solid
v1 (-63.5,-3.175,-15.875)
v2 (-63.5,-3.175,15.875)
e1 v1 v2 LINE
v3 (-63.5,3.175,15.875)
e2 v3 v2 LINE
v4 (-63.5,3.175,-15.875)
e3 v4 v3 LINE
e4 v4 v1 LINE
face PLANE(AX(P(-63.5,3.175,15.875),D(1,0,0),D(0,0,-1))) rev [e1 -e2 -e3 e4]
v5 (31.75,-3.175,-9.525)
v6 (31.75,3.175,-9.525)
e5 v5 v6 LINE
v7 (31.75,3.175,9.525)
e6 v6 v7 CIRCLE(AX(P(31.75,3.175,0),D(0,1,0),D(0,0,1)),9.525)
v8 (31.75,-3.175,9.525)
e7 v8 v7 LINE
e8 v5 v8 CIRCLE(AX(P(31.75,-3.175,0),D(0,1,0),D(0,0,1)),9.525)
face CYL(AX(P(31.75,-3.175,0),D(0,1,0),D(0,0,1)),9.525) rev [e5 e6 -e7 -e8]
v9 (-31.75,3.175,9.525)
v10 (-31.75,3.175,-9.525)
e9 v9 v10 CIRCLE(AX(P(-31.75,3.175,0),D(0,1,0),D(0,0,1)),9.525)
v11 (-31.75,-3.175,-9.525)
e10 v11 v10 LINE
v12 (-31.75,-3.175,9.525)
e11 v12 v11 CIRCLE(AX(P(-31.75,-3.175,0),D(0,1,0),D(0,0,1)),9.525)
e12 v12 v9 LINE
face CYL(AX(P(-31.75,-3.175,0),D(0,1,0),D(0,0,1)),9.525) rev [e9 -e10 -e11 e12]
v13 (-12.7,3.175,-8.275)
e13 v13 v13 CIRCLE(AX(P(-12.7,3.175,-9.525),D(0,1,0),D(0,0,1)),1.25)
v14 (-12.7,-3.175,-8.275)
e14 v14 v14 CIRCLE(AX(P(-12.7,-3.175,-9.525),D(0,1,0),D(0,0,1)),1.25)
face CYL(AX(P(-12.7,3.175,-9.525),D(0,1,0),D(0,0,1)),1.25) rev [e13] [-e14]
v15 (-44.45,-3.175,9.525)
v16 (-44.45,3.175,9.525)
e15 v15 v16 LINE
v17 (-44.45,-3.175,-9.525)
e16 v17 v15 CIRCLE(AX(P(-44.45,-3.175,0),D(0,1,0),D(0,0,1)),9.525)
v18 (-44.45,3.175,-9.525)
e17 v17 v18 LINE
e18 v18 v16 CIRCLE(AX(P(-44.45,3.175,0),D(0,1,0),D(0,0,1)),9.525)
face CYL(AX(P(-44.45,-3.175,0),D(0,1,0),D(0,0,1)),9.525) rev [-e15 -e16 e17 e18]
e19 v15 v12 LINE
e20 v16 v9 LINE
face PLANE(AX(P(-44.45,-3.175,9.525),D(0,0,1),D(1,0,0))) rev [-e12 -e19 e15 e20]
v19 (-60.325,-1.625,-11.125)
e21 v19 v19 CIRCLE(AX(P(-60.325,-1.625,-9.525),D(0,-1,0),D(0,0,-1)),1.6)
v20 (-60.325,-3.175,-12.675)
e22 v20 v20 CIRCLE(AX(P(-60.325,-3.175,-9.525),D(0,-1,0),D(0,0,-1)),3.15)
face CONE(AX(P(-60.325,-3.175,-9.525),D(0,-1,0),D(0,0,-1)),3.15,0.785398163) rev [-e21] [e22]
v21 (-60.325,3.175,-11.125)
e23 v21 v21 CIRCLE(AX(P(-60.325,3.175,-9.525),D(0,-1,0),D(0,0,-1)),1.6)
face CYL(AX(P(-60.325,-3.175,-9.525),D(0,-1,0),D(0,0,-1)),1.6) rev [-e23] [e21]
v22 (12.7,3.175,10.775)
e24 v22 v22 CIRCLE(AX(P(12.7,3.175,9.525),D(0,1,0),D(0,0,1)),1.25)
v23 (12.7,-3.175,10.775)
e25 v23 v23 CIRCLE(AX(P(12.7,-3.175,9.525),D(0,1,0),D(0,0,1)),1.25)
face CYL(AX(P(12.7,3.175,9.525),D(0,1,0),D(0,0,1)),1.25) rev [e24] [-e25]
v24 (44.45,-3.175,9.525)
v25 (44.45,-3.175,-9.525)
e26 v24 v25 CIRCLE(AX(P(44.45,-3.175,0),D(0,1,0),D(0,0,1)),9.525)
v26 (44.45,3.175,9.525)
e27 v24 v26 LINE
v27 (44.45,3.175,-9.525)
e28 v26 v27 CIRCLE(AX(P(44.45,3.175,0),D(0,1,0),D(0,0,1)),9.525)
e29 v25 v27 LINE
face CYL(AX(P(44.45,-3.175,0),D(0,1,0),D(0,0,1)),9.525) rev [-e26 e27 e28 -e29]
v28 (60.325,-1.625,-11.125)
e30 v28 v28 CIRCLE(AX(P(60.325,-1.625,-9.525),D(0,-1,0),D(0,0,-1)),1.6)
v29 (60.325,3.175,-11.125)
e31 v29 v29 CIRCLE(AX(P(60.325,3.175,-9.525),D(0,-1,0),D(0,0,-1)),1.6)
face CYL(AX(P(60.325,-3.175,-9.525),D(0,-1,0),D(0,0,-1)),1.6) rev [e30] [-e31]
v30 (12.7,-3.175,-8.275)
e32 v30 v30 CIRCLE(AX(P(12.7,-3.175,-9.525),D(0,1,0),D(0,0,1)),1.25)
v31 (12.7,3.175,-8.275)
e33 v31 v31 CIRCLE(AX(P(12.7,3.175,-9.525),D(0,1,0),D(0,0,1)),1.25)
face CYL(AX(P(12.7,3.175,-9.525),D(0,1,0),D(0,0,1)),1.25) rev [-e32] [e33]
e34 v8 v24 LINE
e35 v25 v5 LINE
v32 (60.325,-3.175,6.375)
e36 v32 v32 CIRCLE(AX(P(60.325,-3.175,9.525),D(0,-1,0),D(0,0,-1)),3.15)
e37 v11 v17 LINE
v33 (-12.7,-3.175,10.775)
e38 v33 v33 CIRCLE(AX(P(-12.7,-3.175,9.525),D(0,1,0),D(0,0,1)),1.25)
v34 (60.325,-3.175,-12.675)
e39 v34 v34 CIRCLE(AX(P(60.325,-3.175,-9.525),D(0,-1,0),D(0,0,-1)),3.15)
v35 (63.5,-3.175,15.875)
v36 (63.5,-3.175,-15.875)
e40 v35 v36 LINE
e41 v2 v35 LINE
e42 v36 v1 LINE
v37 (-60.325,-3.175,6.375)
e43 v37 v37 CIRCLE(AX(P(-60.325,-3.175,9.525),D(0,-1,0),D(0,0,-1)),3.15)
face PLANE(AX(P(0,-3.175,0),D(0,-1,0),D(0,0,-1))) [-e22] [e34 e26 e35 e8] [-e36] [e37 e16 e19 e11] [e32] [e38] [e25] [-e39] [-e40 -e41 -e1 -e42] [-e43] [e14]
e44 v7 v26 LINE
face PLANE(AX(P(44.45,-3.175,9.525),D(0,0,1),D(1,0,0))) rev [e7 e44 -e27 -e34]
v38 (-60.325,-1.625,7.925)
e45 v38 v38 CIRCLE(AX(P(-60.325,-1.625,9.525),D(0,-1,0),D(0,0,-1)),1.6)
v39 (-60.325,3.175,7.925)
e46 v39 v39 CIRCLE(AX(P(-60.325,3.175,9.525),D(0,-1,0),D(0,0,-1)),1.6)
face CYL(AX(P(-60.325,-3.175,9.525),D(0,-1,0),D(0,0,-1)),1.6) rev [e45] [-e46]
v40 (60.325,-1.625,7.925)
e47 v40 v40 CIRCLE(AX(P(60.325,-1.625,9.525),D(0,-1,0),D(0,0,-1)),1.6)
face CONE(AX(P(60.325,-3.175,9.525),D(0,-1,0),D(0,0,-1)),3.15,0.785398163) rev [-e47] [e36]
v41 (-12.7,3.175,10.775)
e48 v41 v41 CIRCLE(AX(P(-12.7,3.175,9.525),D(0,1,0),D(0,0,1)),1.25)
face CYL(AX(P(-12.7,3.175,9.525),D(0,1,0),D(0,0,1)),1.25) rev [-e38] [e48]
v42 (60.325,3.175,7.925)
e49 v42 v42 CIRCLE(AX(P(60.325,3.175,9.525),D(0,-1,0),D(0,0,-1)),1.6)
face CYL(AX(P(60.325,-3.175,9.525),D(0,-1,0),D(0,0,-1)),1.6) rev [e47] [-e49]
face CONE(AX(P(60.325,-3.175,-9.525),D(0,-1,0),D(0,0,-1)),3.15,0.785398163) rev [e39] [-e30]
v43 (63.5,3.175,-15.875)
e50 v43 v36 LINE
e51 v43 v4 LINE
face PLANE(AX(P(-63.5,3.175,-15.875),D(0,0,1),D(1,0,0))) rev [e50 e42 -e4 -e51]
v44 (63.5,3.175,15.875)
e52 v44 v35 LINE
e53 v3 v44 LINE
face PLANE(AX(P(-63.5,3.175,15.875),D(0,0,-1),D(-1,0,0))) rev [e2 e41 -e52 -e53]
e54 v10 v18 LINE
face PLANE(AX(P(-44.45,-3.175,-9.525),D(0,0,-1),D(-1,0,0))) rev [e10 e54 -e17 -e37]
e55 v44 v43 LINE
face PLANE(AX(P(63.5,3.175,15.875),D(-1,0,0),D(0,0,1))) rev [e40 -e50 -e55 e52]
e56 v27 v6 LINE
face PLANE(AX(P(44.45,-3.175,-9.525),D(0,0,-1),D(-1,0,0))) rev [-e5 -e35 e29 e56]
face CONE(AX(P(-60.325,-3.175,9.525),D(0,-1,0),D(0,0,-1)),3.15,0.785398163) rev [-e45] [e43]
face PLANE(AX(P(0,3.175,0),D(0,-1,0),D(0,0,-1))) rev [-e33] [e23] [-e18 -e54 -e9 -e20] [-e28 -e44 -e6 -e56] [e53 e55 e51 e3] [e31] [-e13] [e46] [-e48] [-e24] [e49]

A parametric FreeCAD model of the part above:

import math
import FreeCAD as App
import Part
import Sketcher

V = App.Vector
Q = App.Units.Quantity

doc = App.newDocument("Part")
body = doc.addObject("PartDesign::Body", "Body")

# Sketch on XZ plane
sketch1 = body.newObject("Sketcher::SketchObject", "Sketch")
sketch1.AttachmentSupport = (doc.getObject("XZ_Plane"), [""])
sketch1.MapMode = "FlatFace"
sketch1.addGeometry([
    Part.LineSegment(V(-64, -16, 0), V(-64, 16, 0)),
    Part.LineSegment(V(-64, 16, 0), V(64, 16, 0)),
    Part.LineSegment(V(64, 16, 0), V(64, -16, 0)),
    Part.LineSegment(V(64, -16, 0), V(-64, -16, 0)),
], False)
sketch1.addConstraint([
    Sketcher.Constraint("Coincident", 0, 2, 1, 1),
    Sketcher.Constraint("Coincident", 1, 2, 2, 1),
    Sketcher.Constraint("Coincident", 2, 2, 3, 1),
    Sketcher.Constraint("Coincident", 3, 2, 0, 1),
    Sketcher.Constraint("Vertical", 0),
    Sketcher.Constraint("Horizontal", 1),
    Sketcher.Constraint("Vertical", 2),
    Sketcher.Constraint("Horizontal", 3),
    Sketcher.Constraint("Symmetric", 0, 2, 2, 2, -1, 1),
    Sketcher.Constraint("DistanceX", 1, 1, 1, 2, Q("5 in")),
    Sketcher.Constraint("DistanceY", 0, 1, 0, 2, Q("1.25 in")),
])
pad1 = body.newObject("PartDesign::Pad", "Pad")
pad1.Profile = sketch1
pad1.Length = Q("0.25 in")
pad1.Midplane = True

# Sketch on XZ plane
sketch2 = body.newObject("Sketcher::SketchObject", "Sketch001")
sketch2.AttachmentSupport = (doc.getObject("XZ_Plane"), [""])
sketch2.MapMode = "FlatFace"
sketch2.AttachmentOffset = App.Placement(V(0, 0, 0.125 * 25.4), App.Rotation())
sketch2.addGeometry([
    Part.Circle(V(-60.3, -9.5, 0), V(0, 0, 1), 1.6),
    Part.Circle(V(-60.3, 9.5, 0), V(0, 0, 1), 1.6),
    Part.Circle(V(60.3, 9.5, 0), V(0, 0, 1), 1.6),
    Part.Circle(V(60.3, -9.5, 0), V(0, 0, 1), 1.6),
], False)
sketch2.addConstraint([
    Sketcher.Constraint("Equal", 0, 1),
    Sketcher.Constraint("Equal", 1, 2),
    Sketcher.Constraint("Equal", 2, 3),
    Sketcher.Constraint("Symmetric", 0, 3, 2, 3, -1, 1),
    Sketcher.Constraint("Symmetric", 1, 3, 3, 3, -1, 1),
    Sketcher.Constraint("Symmetric", 1, 3, 2, 3, -2),
    Sketcher.Constraint("Diameter", 0, 3.2),
    Sketcher.Constraint("DistanceY", 0, 3, 1, 3, Q("0.75 in")),
    Sketcher.Constraint("DistanceX", 1, 3, 2, 3, Q("4.75 in")),
])
doc.recompute()
hole = body.newObject("PartDesign::Hole", "Hole")
hole.Profile = sketch2
hole.ThreadType = "None"
hole.Diameter = 3.2
hole.DepthType = "Dimension"
hole.Depth = Q("0.5 in")
hole.DrillPoint = "Angled"
hole.DrillPointAngle = 118
hole.HoleCutType = "Countersink"
hole.HoleCutDiameter = 6.3
hole.HoleCutCountersinkAngle = 90

# Sketch on XZ plane
sketch3 = body.newObject("Sketcher::SketchObject", "Sketch002")
sketch3.AttachmentSupport = (doc.getObject("XZ_Plane"), [""])
sketch3.MapMode = "FlatFace"
sketch3.AttachmentOffset = App.Placement(V(0, 0, -0.125 * 25.4), App.Rotation())
sketch3.addGeometry([
    Part.Circle(V(-12.7, -9.5, 0), V(0, 0, 1), 1.2),
    Part.Circle(V(12.7, -9.5, 0), V(0, 0, 1), 1.2),
    Part.Circle(V(12.7, 9.5, 0), V(0, 0, 1), 1.2),
    Part.Circle(V(-12.7, 9.5, 0), V(0, 0, 1), 1.2),
], False)
sketch3.addConstraint([
    Sketcher.Constraint("Equal", 0, 1),
    Sketcher.Constraint("Equal", 1, 2),
    Sketcher.Constraint("Equal", 2, 3),
    Sketcher.Constraint("Symmetric", 0, 3, 2, 3, -1, 1),
    Sketcher.Constraint("Symmetric", 1, 3, 3, 3, -1, 1),
    Sketcher.Constraint("Symmetric", 0, 3, 1, 3, -2),
    Sketcher.Constraint("DistanceX", 0, 3, 1, 3, Q("1 in")),
    Sketcher.Constraint("Diameter", 0, 2.5),
    Sketcher.Constraint("DistanceY", 1, 3, 2, 3, Q("0.75 in")),
])
doc.recompute()
hole2 = body.newObject("PartDesign::Hole", "Hole001")
hole2.Profile = sketch3
hole2.ThreadType = "None"
hole2.Diameter = 2.5
hole2.DepthType = "ThroughAll"
hole2.Reversed = True

# Sketch on XZ plane
sketch4 = body.newObject("Sketcher::SketchObject", "Sketch003")
sketch4.AttachmentSupport = (doc.getObject("XZ_Plane"), [""])
sketch4.MapMode = "FlatFace"
sketch4.AttachmentOffset = App.Placement(V(0, 0, -0.125 * 25.4), App.Rotation())
sketch4.addGeometry([
    Part.LineSegment(V(-32, -10, 0), V(-44, -10, 0)),  # 0
    Part.ArcOfCircle(Part.Circle(V(-44, 0, 0), V(0, 0, 1), 10), math.radians(90), math.radians(270)),  # 1
    Part.LineSegment(V(-44, 10, 0), V(-32, 10, 0)),  # 2
    Part.ArcOfCircle(Part.Circle(V(-32, 0, 0), V(0, 0, 1), 10), math.radians(-90), math.radians(90)),  # 3
    Part.LineSegment(V(32, 10, 0), V(44, 10, 0)),  # 4
    Part.ArcOfCircle(Part.Circle(V(44, 0, 0), V(0, 0, 1), 10), math.radians(-90), math.radians(90)),  # 5
    Part.LineSegment(V(44, -10, 0), V(32, -10, 0)),  # 6
    Part.ArcOfCircle(Part.Circle(V(32, 0, 0), V(0, 0, 1), 10), math.radians(90), math.radians(270)),  # 7
], False)
sketch4.addConstraint([
    Sketcher.Constraint("Tangent", 0, 2, 1, 2),
    Sketcher.Constraint("Tangent", 1, 1, 2, 1),
    Sketcher.Constraint("Tangent", 2, 2, 3, 2),
    Sketcher.Constraint("Tangent", 3, 1, 0, 1),
    Sketcher.Constraint("Tangent", 4, 2, 5, 2),
    Sketcher.Constraint("Tangent", 5, 1, 6, 1),
    Sketcher.Constraint("Tangent", 6, 2, 7, 2),
    Sketcher.Constraint("Tangent", 7, 1, 4, 1),
    Sketcher.Constraint("Horizontal", 0),
    Sketcher.Constraint("Horizontal", 2),
    Sketcher.Constraint("Horizontal", 4),
    Sketcher.Constraint("Horizontal", 6),
    Sketcher.Constraint("Equal", 3, 5),
    Sketcher.Constraint("Symmetric", 1, 3, 5, 3, -1, 1),
    Sketcher.Constraint("Symmetric", 3, 3, 7, 3, -2),
    Sketcher.Constraint("DistanceX", 0, 2, 0, 1, Q("0.5 in")),
    Sketcher.Constraint("Radius", 1, Q("0.375 in")),
    Sketcher.Constraint("DistanceX", 3, 3, 5, 3, Q("3 in")),
])
pocket1 = body.newObject("PartDesign::Pocket", "Pocket")
pocket1.Profile = sketch4
pocket1.Type = "ThroughAll"
pocket1.Reversed = True

doc.recompute()
